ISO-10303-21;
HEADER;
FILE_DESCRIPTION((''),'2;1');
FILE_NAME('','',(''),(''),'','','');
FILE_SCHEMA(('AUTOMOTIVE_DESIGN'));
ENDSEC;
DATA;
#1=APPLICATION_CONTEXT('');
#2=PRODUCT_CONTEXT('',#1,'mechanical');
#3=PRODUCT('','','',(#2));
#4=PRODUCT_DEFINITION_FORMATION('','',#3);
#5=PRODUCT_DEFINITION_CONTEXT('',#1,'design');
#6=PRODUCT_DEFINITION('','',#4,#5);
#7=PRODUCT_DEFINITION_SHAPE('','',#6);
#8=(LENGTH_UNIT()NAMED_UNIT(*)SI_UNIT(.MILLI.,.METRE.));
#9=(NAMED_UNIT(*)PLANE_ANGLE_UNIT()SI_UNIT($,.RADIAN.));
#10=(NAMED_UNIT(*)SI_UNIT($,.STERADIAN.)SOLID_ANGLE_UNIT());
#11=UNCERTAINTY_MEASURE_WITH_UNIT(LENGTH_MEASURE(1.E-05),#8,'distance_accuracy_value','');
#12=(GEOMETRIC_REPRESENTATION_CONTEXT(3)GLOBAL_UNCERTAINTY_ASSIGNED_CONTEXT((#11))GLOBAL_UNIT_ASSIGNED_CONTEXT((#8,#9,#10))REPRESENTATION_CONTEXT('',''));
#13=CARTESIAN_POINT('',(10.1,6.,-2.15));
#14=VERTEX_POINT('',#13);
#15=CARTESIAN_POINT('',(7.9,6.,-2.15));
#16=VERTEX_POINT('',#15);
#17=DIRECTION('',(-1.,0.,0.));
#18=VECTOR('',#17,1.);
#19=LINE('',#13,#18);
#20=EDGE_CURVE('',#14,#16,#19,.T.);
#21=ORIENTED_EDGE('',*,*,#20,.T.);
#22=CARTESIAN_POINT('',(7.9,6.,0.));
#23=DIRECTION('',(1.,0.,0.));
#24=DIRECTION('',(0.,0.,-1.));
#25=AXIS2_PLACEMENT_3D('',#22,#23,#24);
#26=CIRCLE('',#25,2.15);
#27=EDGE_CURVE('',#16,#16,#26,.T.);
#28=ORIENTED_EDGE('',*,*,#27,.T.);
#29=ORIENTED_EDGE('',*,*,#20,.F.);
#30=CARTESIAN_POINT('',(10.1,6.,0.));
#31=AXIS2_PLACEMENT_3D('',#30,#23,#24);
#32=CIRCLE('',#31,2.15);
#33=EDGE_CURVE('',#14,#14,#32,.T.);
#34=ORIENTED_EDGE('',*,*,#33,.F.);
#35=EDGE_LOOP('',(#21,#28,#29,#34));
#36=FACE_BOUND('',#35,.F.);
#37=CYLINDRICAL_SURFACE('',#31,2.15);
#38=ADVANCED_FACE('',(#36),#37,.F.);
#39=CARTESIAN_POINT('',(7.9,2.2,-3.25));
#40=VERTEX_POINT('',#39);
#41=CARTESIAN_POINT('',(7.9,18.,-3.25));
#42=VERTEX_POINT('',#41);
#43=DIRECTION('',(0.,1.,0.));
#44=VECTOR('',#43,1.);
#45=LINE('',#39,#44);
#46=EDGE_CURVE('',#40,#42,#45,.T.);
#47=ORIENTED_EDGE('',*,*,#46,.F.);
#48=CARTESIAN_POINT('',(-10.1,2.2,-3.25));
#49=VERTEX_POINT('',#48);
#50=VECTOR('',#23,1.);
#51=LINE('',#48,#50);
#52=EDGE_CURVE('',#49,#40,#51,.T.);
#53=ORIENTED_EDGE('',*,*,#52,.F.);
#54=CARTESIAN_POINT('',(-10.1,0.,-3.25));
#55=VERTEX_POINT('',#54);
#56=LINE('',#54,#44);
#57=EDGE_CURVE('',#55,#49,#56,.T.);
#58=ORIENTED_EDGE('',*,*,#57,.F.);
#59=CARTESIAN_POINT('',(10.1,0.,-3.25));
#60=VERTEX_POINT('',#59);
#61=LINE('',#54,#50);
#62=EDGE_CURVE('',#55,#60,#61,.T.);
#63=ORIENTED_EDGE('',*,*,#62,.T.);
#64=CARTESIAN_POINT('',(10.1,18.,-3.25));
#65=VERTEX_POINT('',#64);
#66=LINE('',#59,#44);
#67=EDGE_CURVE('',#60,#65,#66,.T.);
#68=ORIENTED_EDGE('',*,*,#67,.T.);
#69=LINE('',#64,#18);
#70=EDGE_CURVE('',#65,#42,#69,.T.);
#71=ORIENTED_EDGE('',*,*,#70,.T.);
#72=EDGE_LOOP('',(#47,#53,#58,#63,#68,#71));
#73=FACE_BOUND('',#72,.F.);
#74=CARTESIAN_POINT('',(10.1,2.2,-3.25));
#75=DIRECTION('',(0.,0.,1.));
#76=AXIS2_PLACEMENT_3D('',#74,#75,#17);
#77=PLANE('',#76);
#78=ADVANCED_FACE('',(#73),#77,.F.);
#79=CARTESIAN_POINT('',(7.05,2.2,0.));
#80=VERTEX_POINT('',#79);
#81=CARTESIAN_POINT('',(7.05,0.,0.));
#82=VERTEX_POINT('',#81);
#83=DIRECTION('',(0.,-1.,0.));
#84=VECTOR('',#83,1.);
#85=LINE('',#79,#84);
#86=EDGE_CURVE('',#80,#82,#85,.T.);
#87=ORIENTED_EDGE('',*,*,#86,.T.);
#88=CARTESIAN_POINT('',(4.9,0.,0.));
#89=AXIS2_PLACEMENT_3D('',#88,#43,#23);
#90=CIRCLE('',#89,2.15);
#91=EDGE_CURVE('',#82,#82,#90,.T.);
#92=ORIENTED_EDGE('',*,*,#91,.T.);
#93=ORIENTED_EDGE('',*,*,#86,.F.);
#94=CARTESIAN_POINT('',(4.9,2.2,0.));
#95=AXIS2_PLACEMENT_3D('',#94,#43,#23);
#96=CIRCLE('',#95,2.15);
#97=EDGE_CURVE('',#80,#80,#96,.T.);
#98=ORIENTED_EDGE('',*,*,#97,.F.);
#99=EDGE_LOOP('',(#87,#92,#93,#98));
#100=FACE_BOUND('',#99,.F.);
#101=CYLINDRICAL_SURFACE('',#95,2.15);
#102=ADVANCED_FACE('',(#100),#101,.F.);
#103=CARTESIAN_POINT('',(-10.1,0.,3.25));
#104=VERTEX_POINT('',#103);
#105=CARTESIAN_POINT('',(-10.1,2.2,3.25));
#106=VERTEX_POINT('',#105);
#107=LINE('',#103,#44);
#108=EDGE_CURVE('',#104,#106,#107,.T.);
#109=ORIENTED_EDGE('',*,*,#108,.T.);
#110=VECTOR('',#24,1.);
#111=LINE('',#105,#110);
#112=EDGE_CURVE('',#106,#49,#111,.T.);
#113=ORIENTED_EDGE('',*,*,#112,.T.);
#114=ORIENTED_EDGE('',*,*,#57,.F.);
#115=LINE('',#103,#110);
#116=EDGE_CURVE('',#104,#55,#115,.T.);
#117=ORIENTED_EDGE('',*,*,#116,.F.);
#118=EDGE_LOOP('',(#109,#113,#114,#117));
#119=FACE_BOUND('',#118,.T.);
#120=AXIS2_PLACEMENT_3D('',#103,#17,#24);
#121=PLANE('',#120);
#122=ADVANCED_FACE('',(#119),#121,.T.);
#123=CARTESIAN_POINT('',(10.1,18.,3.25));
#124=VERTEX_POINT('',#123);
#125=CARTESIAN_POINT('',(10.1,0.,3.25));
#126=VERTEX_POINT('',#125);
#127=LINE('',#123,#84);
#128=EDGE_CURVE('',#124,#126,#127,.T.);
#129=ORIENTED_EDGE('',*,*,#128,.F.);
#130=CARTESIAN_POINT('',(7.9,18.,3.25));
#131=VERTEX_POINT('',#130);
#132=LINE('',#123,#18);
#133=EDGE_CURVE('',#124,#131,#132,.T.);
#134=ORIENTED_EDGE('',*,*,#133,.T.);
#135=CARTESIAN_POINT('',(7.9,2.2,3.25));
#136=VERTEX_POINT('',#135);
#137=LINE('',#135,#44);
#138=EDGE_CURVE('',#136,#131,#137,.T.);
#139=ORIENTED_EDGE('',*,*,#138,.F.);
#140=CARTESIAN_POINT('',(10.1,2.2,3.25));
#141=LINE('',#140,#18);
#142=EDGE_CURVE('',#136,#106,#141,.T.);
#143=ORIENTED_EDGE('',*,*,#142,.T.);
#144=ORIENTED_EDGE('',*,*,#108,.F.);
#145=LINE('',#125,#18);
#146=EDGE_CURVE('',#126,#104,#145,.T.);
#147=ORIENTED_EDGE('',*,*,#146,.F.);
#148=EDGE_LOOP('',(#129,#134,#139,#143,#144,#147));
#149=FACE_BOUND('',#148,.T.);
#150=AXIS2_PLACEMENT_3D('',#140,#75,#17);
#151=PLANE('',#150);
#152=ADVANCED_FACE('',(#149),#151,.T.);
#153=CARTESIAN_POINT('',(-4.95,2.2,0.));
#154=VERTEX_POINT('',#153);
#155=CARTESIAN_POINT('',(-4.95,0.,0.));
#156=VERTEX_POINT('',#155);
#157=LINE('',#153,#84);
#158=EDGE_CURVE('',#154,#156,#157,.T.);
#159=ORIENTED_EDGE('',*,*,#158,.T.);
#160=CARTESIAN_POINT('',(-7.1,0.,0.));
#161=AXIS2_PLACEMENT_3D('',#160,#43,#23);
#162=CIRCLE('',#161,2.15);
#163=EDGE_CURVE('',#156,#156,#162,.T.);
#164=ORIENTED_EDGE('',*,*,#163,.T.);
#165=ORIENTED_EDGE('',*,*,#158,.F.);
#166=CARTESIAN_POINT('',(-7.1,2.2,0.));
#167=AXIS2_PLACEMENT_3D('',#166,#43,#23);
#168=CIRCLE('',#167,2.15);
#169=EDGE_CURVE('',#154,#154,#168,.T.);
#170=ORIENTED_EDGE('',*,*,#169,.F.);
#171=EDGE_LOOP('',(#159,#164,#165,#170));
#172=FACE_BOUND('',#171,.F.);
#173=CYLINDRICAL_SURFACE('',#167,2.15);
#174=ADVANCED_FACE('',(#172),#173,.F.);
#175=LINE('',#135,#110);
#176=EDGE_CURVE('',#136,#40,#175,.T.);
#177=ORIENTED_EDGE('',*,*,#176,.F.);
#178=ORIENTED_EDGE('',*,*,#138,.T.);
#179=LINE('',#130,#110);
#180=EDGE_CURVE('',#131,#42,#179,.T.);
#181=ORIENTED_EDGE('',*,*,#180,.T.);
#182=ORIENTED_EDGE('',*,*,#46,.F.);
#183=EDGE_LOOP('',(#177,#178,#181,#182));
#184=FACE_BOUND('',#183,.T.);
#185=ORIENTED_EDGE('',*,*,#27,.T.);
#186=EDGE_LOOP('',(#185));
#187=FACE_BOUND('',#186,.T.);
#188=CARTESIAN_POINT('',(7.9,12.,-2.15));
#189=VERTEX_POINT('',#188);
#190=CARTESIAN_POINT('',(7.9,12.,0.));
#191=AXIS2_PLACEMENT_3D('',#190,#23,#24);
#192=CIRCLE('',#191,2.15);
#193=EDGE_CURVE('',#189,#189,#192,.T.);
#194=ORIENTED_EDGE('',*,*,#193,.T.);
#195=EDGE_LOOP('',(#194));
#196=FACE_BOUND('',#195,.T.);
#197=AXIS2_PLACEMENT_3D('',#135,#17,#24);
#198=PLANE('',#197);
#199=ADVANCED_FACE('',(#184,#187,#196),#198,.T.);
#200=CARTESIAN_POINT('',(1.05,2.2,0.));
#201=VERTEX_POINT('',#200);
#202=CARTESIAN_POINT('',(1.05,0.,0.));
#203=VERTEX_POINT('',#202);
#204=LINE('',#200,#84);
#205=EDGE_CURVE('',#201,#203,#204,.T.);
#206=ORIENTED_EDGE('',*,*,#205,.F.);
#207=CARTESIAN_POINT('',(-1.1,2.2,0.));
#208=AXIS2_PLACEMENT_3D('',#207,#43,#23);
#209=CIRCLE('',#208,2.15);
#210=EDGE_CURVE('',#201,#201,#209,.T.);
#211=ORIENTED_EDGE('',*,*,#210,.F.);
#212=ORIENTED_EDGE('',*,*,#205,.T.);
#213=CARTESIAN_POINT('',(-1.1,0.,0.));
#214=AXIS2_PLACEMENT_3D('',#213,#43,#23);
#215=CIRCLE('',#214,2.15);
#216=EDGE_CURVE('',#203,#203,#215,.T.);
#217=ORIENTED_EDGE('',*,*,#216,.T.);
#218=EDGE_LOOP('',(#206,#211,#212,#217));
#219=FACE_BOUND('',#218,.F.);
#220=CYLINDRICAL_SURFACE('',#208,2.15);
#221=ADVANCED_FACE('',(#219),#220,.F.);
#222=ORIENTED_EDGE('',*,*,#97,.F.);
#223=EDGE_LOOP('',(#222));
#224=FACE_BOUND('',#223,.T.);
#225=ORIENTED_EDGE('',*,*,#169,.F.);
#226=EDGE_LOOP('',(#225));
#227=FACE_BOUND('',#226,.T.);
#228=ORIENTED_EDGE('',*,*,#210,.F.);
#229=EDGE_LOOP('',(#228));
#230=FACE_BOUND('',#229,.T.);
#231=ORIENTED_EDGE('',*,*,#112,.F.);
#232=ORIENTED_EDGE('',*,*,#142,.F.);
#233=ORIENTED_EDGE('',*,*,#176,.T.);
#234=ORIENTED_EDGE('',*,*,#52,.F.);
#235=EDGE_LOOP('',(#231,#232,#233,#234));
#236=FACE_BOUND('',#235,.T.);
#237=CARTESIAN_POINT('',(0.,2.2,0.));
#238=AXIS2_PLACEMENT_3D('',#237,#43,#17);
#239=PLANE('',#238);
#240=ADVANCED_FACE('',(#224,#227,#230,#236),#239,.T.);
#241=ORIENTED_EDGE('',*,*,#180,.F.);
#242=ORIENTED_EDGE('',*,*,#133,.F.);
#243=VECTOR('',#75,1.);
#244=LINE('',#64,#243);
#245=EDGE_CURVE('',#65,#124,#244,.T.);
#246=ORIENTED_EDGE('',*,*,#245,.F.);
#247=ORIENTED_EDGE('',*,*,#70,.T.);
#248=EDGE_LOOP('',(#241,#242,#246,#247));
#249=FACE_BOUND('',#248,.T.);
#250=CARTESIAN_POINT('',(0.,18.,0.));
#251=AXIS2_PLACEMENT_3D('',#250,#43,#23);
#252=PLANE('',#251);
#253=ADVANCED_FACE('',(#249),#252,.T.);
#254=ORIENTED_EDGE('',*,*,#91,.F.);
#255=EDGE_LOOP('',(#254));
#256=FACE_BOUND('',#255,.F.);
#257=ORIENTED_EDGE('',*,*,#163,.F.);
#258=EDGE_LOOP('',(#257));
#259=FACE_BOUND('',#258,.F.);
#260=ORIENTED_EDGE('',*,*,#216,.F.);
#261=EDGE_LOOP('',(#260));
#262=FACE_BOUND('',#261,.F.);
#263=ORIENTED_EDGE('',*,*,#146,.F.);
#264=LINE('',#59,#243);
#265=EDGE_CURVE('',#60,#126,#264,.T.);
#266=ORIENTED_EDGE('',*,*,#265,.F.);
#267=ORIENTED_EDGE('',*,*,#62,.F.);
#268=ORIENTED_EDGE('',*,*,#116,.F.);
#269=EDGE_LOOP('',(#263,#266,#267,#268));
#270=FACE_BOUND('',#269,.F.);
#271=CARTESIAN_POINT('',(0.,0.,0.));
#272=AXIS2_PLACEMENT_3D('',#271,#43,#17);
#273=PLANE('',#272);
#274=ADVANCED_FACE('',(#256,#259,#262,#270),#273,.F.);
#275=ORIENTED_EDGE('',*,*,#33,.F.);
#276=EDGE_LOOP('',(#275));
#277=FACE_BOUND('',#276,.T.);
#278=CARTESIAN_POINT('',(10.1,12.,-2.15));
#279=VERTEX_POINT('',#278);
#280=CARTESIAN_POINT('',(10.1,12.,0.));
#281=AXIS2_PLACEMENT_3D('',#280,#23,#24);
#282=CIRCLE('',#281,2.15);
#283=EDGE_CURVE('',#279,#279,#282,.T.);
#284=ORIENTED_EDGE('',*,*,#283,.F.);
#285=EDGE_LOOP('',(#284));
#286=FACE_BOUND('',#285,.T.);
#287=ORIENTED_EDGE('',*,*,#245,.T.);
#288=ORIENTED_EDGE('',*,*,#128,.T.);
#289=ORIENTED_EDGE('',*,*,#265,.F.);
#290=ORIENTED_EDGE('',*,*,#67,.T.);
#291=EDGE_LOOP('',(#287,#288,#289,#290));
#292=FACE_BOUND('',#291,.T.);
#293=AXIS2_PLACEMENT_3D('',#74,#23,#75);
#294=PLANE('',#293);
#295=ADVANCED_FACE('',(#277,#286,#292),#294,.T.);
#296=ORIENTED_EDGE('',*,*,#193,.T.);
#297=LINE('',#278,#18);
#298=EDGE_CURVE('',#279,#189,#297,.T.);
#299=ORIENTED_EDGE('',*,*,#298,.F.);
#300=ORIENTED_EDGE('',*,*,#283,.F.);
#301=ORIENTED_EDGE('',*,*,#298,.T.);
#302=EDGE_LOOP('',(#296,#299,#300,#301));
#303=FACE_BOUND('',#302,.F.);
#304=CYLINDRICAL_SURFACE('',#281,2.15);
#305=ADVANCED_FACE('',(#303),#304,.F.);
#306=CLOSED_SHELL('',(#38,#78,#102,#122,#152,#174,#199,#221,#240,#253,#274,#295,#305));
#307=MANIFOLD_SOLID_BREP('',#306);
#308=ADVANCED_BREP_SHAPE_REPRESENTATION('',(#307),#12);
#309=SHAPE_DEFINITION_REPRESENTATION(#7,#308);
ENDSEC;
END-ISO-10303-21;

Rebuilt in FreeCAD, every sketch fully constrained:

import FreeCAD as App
import Part
import Sketcher
Q = App.Units.Quantity

doc = App.newDocument("Part")
body = doc.addObject("PartDesign::Body", "Body")

# Sketch on XZ plane
sketch1 = body.newObject("Sketcher::SketchObject", "Sketch")
sketch1.AttachmentSupport = (doc.getObject("XZ_Plane"), [""])
sketch1.MapMode = "FlatFace"
sketch1.addGeometry([
    Part.LineSegment(App.Vector(-10, 3, 0), App.Vector(10, 3, 0)),
    Part.LineSegment(App.Vector(10, 3, 0), App.Vector(10, -3, 0)),
    Part.LineSegment(App.Vector(10, -3, 0), App.Vector(-10, -3, 0)),
    Part.LineSegment(App.Vector(-10, -3, 0), App.Vector(-10, 3, 0)),
], False)
sketch1.addConstraint([
    Sketcher.Constraint("Coincident", 0, 2, 1, 1),
    Sketcher.Constraint("Coincident", 1, 2, 2, 1),
    Sketcher.Constraint("Coincident", 2, 2, 3, 1),
    Sketcher.Constraint("Coincident", 3, 2, 0, 1),
    Sketcher.Constraint("Horizontal", 0),
    Sketcher.Constraint("Vertical", 1),
    Sketcher.Constraint("Horizontal", 2),
    Sketcher.Constraint("Vertical", 3),
    Sketcher.Constraint("Symmetric", 0, 2, 2, 2, -1, 1),
    Sketcher.Constraint("DistanceX", 0, 1, 0, 2, Q("20.2 mm")),
    Sketcher.Constraint("DistanceY", 1, 2, 1, 1, Q("6.5 mm")),
])
pad1 = body.newObject("PartDesign::Pad", "Pad")
pad1.Profile = sketch1
pad1.Length = 2.2
pad1.Reversed = True

# Sketch on XZ plane
sketch2 = body.newObject("Sketcher::SketchObject", "Sketch001")
sketch2.AttachmentSupport = (doc.getObject("XZ_Plane"), [""])
sketch2.MapMode = "FlatFace"
sketch2.AttachmentOffset = App.Placement(App.Vector(0, 0, -2.2), App.Rotation())
sketch2.addGeometry([
    Part.Circle(App.Vector(-1.1, 0, 0), App.Vector(0, 0, 1), 2.1),
    Part.Circle(App.Vector(-7.1, 0, 0), App.Vector(0, 0, 1), 2.1),
    Part.Circle(App.Vector(4.9, 0, 0), App.Vector(0, 0, 1), 2.1),
], False)
sketch2.addConstraint([
    Sketcher.Constraint("Equal", 0, 1),
    Sketcher.Constraint("Equal", 1, 2),
    Sketcher.Constraint("PointOnObject", 0, 3, -1),
    Sketcher.Constraint("PointOnObject", 1, 3, -1),
    Sketcher.Constraint("PointOnObject", 2, 3, -1),
    Sketcher.Constraint("Diameter", 0, Q("4.3 mm")),
    Sketcher.Constraint("DistanceX", 1, 3, 0, 3, Q("6 mm")),
    Sketcher.Constraint("DistanceX", 0, 3, 2, 3, Q("6 mm")),
    Sketcher.Constraint("DistanceX", 0, 3, -1, 1, Q("1.1 mm")),
])
pocket1 = body.newObject("PartDesign::Pocket", "Pocket")
pocket1.Profile = sketch2
pocket1.Type = "ThroughAll"
pocket1.Reversed = True

# Sketch on XZ plane
sketch3 = body.newObject("Sketcher::SketchObject", "Sketch002")
sketch3.AttachmentSupport = (doc.getObject("XZ_Plane"), [""])
sketch3.MapMode = "FlatFace"
sketch3.AttachmentOffset = App.Placement(App.Vector(0, 0, -2.2), App.Rotation())
sketch3.addGeometry([
    Part.LineSegment(App.Vector(10.1, 3.2, 0), App.Vector(10.1, -3.2, 0)),
    Part.LineSegment(App.Vector(10.1, -3.2, 0), App.Vector(7.9, -3.2, 0)),
    Part.LineSegment(App.Vector(7.9, -3.2, 0), App.Vector(7.9, 3.2, 0)),
    Part.LineSegment(App.Vector(7.9, 3.2, 0), App.Vector(10.1, 3.2, 0)),
], False)
sketch3.addConstraint([
    Sketcher.Constraint("Coincident", 0, 2, 1, 1),
    Sketcher.Constraint("Coincident", 1, 2, 2, 1),
    Sketcher.Constraint("Coincident", 2, 2, 3, 1),
    Sketcher.Constraint("Coincident", 3, 2, 0, 1),
    Sketcher.Constraint("Vertical", 0),
    Sketcher.Constraint("Horizontal", 1),
    Sketcher.Constraint("Vertical", 2),
    Sketcher.Constraint("Horizontal", 3),
    Sketcher.Constraint("DistanceX", 1, 2, 1, 1, Q("2.2 mm")),
    Sketcher.Constraint("DistanceY", 0, 2, 0, 1, Q("6.5 mm")),
    Sketcher.Constraint("DistanceX", -1, 1, 0, 2, Q("10.1 mm")),
    Sketcher.Constraint("DistanceY", 0, 2, -1, 1, Q("3.25 mm")),
])
pad2 = body.newObject("PartDesign::Pad", "Pad001")
pad2.Profile = sketch3
pad2.Length = 15.8
pad2.Reversed = True

# Sketch on YZ plane
sketch4 = body.newObject("Sketcher::SketchObject", "Sketch003")
sketch4.AttachmentSupport = (doc.getObject("YZ_Plane"), [""])
sketch4.MapMode = "FlatFace"
sketch4.AttachmentOffset = App.Placement(App.Vector(0, 0, 10.1), App.Rotation())
sketch4.addGeometry([
    Part.Circle(App.Vector(6, 0, 0), App.Vector(0, 0, 1), 2.1),
    Part.Circle(App.Vector(12, 0, 0), App.Vector(0, 0, 1), 2.1),
], False)
sketch4.addConstraint([
    Sketcher.Constraint("Equal", 0, 1),
    Sketcher.Constraint("PointOnObject", 0, 3, -1),
    Sketcher.Constraint("PointOnObject", 1, 3, -1),
    Sketcher.Constraint("Diameter", 0, Q("4.3 mm")),
    Sketcher.Constraint("DistanceX", -1, 1, 0, 3, Q("6 mm")),
    Sketcher.Constraint("DistanceX", 0, 3, 1, 3, Q("6 mm")),
])
pocket2 = body.newObject("PartDesign::Pocket", "Pocket001")
pocket2.Profile = sketch4
pocket2.Type = "ThroughAll"

doc.recompute()
